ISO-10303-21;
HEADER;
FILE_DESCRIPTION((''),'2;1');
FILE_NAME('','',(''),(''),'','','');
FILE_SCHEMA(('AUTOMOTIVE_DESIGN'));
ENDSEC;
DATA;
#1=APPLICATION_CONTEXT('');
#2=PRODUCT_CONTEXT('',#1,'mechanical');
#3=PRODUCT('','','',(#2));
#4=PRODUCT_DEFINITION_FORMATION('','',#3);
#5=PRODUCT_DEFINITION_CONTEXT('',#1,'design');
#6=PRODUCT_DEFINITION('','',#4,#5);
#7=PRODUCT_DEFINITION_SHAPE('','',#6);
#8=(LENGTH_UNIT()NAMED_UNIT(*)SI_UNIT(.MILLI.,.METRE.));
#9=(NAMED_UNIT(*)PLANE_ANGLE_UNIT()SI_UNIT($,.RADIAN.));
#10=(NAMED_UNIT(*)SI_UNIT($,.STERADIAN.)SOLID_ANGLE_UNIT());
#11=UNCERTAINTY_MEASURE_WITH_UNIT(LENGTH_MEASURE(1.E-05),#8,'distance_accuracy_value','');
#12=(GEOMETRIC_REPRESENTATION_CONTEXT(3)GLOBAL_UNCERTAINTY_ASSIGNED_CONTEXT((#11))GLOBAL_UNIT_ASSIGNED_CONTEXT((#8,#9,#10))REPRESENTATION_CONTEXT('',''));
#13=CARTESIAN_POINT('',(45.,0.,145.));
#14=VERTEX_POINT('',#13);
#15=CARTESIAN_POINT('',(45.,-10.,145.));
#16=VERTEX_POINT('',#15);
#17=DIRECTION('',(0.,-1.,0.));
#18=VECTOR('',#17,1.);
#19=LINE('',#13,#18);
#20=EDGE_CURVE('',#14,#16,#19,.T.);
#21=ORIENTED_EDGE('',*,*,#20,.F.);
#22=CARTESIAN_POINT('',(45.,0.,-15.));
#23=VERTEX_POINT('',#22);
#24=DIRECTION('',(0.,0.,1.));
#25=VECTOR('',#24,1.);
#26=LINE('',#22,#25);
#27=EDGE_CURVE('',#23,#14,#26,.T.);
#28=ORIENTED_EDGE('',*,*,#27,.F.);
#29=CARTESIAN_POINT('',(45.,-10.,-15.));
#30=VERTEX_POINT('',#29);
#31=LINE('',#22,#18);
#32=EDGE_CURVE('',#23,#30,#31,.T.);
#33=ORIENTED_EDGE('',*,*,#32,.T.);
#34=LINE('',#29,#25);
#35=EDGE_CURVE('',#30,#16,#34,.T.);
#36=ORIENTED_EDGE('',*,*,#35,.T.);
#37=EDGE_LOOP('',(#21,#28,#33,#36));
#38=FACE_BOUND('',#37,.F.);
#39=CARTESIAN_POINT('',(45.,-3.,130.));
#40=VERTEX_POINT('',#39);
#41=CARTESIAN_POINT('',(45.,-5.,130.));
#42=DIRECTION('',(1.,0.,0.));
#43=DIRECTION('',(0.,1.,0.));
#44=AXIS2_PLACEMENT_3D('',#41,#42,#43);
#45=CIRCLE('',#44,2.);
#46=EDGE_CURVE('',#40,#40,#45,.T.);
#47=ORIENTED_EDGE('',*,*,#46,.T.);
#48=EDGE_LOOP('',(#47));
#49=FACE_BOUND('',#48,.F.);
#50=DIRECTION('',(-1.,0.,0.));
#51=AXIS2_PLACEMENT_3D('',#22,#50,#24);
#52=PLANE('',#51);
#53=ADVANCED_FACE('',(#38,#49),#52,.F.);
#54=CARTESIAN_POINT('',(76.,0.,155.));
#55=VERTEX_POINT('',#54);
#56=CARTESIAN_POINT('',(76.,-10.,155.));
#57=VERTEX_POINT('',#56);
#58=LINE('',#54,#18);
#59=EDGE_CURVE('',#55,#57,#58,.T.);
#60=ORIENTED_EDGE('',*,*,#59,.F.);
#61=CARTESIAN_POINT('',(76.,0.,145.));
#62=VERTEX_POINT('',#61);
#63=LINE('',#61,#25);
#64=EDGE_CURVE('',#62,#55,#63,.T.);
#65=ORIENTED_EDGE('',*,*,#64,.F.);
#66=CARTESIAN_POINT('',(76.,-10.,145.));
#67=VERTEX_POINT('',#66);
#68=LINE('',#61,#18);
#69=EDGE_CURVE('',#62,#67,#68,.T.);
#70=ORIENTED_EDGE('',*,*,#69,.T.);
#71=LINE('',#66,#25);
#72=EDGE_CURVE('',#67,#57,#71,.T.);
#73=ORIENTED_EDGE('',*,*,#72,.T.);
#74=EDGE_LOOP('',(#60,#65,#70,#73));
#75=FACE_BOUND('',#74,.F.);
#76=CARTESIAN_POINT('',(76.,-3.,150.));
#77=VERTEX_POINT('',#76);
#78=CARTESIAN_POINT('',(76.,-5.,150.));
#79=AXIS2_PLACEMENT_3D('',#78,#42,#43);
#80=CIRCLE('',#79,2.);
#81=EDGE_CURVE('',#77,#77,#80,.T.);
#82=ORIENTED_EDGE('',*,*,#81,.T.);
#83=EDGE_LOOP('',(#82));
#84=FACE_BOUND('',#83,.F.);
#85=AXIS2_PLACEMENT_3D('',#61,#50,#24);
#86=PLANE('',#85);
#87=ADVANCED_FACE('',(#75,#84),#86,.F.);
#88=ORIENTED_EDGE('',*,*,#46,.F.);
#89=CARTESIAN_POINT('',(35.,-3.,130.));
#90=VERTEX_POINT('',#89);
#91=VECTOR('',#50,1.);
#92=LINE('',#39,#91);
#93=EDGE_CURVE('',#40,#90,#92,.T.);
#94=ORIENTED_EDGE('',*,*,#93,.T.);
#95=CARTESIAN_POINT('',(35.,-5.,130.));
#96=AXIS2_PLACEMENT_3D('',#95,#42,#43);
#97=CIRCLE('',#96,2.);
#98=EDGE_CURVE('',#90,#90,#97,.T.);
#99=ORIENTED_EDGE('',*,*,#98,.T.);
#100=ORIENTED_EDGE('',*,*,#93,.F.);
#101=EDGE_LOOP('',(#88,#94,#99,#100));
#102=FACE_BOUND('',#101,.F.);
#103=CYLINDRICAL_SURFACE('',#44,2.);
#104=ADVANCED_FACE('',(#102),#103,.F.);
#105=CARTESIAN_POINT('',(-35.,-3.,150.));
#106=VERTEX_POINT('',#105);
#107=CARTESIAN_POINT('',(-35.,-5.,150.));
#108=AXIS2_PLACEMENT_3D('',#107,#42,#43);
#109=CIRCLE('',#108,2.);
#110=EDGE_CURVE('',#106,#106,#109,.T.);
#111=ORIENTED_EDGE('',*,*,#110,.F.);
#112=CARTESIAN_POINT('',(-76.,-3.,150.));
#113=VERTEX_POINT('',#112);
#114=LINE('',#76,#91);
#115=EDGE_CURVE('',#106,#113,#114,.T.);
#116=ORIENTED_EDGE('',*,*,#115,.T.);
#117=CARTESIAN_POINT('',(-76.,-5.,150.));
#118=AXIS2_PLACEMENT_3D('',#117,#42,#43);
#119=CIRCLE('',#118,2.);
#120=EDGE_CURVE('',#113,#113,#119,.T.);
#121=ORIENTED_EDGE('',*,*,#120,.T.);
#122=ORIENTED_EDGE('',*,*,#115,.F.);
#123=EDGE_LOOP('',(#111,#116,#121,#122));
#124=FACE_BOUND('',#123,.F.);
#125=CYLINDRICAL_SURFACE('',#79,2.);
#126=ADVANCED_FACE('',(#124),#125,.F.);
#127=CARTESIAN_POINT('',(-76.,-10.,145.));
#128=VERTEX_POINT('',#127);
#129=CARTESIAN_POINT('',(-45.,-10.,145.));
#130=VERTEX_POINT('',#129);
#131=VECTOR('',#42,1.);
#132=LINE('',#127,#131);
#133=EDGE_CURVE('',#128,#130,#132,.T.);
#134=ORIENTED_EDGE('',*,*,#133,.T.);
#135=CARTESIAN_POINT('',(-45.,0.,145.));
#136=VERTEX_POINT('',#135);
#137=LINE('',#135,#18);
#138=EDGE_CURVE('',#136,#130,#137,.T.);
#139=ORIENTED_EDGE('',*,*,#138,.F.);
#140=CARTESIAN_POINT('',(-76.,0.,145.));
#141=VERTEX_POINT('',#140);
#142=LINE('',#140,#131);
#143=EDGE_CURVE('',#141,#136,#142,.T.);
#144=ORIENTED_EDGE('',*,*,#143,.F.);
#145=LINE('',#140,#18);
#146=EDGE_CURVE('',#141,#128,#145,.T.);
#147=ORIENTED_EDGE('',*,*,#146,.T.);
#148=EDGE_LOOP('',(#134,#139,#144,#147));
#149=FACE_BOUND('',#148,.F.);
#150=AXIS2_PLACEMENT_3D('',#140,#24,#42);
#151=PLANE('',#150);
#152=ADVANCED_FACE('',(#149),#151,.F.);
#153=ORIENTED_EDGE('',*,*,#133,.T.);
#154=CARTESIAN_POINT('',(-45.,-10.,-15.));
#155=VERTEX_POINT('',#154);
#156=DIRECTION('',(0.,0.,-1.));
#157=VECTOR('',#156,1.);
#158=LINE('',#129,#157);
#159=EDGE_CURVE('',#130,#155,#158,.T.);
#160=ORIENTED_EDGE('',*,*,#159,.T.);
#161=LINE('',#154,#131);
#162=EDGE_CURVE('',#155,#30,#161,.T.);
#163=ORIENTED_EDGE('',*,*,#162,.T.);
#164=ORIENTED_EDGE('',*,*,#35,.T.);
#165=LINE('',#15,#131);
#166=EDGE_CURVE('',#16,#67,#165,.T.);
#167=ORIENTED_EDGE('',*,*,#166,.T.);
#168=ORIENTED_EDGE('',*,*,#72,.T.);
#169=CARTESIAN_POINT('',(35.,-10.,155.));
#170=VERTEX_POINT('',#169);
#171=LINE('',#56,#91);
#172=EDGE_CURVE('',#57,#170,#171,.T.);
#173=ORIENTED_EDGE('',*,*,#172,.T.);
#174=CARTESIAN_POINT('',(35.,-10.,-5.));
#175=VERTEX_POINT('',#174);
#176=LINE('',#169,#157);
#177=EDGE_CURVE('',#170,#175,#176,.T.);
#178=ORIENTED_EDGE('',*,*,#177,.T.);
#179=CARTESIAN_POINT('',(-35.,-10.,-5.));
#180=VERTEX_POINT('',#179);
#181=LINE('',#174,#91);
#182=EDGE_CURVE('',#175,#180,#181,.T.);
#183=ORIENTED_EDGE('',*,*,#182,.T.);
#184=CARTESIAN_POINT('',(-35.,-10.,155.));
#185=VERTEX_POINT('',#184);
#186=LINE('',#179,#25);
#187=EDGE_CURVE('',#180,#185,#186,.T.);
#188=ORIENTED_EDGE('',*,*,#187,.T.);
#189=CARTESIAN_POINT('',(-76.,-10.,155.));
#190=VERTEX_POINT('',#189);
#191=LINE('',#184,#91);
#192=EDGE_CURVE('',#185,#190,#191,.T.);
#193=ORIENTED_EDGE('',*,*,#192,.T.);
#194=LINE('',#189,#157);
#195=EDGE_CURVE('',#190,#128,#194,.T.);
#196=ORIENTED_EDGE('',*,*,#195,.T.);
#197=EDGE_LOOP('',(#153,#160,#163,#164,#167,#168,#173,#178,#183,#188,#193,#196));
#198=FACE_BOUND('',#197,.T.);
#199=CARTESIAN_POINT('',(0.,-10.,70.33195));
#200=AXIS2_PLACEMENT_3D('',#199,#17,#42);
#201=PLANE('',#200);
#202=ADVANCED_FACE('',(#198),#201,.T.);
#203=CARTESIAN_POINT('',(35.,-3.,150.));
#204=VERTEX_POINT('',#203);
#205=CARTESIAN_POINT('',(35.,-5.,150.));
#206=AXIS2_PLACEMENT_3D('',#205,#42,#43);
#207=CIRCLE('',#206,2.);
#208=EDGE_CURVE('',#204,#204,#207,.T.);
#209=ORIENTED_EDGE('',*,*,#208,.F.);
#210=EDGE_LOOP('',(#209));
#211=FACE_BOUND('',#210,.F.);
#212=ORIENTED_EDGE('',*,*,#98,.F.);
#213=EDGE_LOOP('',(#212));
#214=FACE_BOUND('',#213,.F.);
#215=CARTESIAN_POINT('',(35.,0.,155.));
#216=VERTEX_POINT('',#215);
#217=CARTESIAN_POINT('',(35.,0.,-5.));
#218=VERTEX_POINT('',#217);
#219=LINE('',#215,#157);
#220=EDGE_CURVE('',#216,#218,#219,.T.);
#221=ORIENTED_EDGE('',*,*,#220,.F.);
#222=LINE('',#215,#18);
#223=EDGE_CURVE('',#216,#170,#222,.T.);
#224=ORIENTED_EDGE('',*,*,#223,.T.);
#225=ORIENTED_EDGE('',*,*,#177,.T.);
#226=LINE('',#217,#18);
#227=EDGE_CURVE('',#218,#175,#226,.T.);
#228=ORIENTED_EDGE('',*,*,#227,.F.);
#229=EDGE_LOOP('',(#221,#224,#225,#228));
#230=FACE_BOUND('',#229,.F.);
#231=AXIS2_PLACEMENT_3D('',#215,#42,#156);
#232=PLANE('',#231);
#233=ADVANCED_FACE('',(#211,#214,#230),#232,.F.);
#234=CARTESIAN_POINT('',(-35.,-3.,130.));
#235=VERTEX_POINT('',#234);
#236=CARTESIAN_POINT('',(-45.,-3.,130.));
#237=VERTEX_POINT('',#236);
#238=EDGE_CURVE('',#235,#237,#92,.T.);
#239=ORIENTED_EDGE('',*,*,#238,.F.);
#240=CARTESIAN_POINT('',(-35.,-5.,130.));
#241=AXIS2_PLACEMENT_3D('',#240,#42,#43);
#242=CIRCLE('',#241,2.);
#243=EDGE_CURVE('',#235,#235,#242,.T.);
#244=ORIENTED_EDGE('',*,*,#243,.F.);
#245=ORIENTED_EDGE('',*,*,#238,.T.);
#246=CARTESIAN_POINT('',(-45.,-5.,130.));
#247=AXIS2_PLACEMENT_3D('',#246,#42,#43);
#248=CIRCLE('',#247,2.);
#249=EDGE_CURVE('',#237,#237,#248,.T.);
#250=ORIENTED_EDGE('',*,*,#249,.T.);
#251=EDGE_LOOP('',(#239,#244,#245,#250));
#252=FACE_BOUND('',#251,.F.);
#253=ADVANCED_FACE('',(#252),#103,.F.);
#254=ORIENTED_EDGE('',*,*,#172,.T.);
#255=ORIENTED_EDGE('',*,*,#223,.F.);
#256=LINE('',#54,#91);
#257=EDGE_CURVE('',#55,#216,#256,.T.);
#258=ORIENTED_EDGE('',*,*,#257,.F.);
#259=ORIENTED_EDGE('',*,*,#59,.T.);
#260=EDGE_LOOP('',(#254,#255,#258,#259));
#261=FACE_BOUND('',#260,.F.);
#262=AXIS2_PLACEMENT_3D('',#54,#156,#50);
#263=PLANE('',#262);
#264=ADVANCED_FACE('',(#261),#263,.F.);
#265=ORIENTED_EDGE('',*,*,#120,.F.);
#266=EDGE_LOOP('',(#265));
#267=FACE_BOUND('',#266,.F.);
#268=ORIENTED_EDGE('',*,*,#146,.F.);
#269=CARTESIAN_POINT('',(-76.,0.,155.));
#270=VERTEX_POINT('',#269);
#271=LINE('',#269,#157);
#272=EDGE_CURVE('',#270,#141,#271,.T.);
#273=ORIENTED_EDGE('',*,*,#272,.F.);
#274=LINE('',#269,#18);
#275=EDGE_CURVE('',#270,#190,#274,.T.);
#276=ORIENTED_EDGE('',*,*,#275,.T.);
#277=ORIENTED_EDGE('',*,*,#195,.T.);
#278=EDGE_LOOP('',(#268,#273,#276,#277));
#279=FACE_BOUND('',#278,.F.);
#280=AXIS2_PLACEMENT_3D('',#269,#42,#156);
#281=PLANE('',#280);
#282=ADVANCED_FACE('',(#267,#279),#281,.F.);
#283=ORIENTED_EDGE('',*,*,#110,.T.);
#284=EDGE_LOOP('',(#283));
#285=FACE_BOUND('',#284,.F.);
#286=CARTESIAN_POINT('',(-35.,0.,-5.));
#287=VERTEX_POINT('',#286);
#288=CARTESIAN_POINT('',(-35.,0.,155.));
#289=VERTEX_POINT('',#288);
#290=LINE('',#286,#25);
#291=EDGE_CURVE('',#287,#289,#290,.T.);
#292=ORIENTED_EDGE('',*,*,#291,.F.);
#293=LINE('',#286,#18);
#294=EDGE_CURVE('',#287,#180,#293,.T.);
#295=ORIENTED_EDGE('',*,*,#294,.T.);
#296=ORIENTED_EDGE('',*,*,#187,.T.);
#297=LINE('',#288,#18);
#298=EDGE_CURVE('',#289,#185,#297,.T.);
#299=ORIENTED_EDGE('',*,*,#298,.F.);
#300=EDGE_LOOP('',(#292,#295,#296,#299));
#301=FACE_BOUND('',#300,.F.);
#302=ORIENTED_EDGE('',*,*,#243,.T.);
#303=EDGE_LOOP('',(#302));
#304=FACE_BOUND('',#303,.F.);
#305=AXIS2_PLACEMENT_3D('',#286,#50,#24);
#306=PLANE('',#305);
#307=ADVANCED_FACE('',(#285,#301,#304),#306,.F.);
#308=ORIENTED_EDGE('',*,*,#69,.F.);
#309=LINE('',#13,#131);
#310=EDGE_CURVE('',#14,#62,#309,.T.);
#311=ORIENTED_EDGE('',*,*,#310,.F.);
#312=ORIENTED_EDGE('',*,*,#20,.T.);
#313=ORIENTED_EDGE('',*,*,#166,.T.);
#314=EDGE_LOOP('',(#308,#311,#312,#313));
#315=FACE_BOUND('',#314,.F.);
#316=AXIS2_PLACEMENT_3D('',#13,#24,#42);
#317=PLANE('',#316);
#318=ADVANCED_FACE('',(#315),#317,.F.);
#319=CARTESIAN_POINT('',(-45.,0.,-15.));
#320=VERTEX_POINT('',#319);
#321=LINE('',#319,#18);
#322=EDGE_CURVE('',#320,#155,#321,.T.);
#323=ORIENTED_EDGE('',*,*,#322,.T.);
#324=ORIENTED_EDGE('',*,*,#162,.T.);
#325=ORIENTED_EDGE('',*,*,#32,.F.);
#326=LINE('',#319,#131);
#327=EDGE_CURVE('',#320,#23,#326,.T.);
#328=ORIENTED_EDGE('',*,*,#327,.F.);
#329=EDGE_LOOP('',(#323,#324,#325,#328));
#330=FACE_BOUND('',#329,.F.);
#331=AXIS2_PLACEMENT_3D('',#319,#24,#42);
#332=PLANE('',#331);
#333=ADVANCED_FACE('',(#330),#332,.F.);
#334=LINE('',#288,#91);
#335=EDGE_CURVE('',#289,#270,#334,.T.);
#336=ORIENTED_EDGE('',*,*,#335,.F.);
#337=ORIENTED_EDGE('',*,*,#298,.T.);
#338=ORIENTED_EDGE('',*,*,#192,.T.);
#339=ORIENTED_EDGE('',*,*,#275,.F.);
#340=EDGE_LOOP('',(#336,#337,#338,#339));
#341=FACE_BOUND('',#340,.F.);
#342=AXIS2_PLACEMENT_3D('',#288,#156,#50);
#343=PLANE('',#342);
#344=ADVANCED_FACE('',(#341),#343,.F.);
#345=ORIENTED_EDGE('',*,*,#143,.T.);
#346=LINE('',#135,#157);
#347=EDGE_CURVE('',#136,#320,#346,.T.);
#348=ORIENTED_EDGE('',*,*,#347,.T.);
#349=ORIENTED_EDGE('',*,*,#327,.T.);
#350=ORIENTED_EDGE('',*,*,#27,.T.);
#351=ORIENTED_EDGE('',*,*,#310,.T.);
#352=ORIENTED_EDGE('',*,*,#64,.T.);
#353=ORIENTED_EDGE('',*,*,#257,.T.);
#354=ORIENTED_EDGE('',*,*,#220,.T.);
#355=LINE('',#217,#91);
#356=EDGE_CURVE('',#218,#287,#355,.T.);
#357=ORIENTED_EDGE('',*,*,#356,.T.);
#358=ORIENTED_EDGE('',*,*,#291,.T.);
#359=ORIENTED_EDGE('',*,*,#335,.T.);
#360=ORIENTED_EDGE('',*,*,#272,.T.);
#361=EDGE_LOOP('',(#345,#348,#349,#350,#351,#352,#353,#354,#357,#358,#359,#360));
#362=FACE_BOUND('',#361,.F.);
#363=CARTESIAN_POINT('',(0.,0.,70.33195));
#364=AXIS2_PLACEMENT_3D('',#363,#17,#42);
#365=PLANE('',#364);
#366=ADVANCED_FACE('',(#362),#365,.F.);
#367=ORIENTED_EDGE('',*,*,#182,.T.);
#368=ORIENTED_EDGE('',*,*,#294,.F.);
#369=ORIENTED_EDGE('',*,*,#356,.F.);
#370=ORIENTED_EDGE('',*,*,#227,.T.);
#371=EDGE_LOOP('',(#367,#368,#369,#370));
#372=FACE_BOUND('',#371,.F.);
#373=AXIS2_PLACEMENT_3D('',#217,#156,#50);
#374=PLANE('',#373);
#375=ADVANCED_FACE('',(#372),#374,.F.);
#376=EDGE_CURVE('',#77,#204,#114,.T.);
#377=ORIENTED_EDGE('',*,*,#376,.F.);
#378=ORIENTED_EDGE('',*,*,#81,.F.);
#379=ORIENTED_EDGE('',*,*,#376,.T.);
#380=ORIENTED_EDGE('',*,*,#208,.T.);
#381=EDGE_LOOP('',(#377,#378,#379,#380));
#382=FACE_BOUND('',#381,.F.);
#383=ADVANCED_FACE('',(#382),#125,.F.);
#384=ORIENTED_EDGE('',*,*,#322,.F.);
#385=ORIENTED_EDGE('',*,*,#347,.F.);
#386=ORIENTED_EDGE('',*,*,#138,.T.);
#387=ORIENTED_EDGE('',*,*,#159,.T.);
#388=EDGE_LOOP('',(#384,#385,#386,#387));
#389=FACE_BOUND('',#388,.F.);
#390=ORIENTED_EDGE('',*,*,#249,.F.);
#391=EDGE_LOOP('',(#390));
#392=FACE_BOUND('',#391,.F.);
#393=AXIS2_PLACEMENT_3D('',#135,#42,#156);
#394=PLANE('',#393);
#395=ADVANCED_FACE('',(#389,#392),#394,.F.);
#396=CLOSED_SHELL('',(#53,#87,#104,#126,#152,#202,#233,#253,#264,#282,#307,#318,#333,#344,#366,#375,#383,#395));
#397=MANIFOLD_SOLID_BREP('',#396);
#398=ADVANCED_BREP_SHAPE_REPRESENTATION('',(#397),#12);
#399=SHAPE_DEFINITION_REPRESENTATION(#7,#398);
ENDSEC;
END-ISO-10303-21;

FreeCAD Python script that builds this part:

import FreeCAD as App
import Part
import Sketcher
from FreeCAD import Vector

doc = App.newDocument("Part")
params = doc.addObject("Spreadsheet::Sheet", "Params")
for row, (alias, value) in enumerate([
    ("sketch1_width", "90 mm"),
    ("sketch1_width2", "31 mm"),
    ("sketch1_width3", "41 mm"),
    ("sketch1_height", "160 mm"),
    ("sketch1_height2", "10 mm"),
    ("pad1_length", "10 mm"),
    ("sketch2_diameter", "4 mm"),
    ("sketch3_diameter", "4 mm"),
], start=1):
    params.set(f"A{row}", alias)
    params.set(f"B{row}", "=" + value)
    params.setAlias(f"B{row}", alias)

body = doc.addObject("PartDesign::Body", "Body")

sketch1 = body.newObject("Sketcher::SketchObject", "Sketch")
sketch1.AttachmentSupport = (doc.getObject("XZ_Plane"), [""])
sketch1.MapMode = "FlatFace"
sketch1.addGeometry([
    Part.LineSegment(Vector(-45, 145, 0), Vector(-45, -15, 0)),
    Part.LineSegment(Vector(-45, -15, 0), Vector(45, -15, 0)),
    Part.LineSegment(Vector(45, -15, 0), Vector(45, 145, 0)),
    Part.LineSegment(Vector(45, 145, 0), Vector(76, 145, 0)),
    Part.LineSegment(Vector(76, 145, 0), Vector(76, 155, 0)),
    Part.LineSegment(Vector(76, 155, 0), Vector(35, 155, 0)),
    Part.LineSegment(Vector(35, 155, 0), Vector(35, -5, 0)),
    Part.LineSegment(Vector(35, -5, 0), Vector(-35, -5, 0)),
    Part.LineSegment(Vector(-35, -5, 0), Vector(-35, 155, 0)),
    Part.LineSegment(Vector(-35, 155, 0), Vector(-76, 155, 0)),
    Part.LineSegment(Vector(-76, 155, 0), Vector(-76, 145, 0)),
    Part.LineSegment(Vector(-76, 145, 0), Vector(-45, 145, 0)),
], False)
sketch1.addConstraint([
    Sketcher.Constraint("Coincident", 0, 2, 1, 1),
    Sketcher.Constraint("Coincident", 1, 2, 2, 1),
    Sketcher.Constraint("Coincident", 2, 2, 3, 1),
    Sketcher.Constraint("Coincident", 3, 2, 4, 1),
    Sketcher.Constraint("Coincident", 4, 2, 5, 1),
    Sketcher.Constraint("Coincident", 5, 2, 6, 1),
    Sketcher.Constraint("Coincident", 6, 2, 7, 1),
    Sketcher.Constraint("Coincident", 7, 2, 8, 1),
    Sketcher.Constraint("Coincident", 8, 2, 9, 1),
    Sketcher.Constraint("Coincident", 9, 2, 10, 1),
    Sketcher.Constraint("Coincident", 10, 2, 11, 1),
    Sketcher.Constraint("Coincident", 11, 2, 0, 1),
    Sketcher.Constraint("Vertical", 0),
    Sketcher.Constraint("Horizontal", 1),
    Sketcher.Constraint("Vertical", 2),
    Sketcher.Constraint("Horizontal", 3),
    Sketcher.Constraint("Vertical", 4),
    Sketcher.Constraint("Horizontal", 5),
    Sketcher.Constraint("Vertical", 6),
    Sketcher.Constraint("Horizontal", 7),
    Sketcher.Constraint("Vertical", 8),
    Sketcher.Constraint("Horizontal", 9),
    Sketcher.Constraint("Vertical", 10),
    Sketcher.Constraint("Horizontal", 11),
    Sketcher.Constraint("Symmetric", 5, 2, 8, 2, -2),
    Sketcher.Constraint("Symmetric", 3, 2, 10, 2, -2),
    Sketcher.Constraint("Equal", 3, 11),
    Sketcher.Constraint("Equal", 2, 6),
    Sketcher.Constraint("DistanceX", 1, 1, 1, 2, 90.0),
    Sketcher.Constraint("DistanceX", 3, 1, 3, 2, 31.0),
    Sketcher.Constraint("DistanceX", 5, 2, 5, 1, 41.0),
    Sketcher.Constraint("DistanceY", 0, 2, 0, 1, 160.0),
    Sketcher.Constraint("DistanceY", 4, 1, 4, 2, 10.0),
    Sketcher.Constraint("DistanceY", 0, 2, -1, 1, 15.0),
])
sketch1.setExpression("Constraints[28]", "Params.sketch1_width")
sketch1.setExpression("Constraints[29]", "Params.sketch1_width2")
sketch1.setExpression("Constraints[30]", "Params.sketch1_width3")
sketch1.setExpression("Constraints[31]", "Params.sketch1_height")
sketch1.setExpression("Constraints[32]", "Params.sketch1_height2")
pad1 = body.newObject("PartDesign::Pad", "Pad")
pad1.Profile = sketch1
pad1.setExpression("Length", "Params.pad1_length")

sketch2 = body.newObject("Sketcher::SketchObject", "Sketch001")
sketch2.AttachmentSupport = (doc.getObject("YZ_Plane"), [""])
sketch2.MapMode = "FlatFace"
sketch2.AttachmentOffset = App.Placement(Vector(0, 0, 76), App.Rotation())
sketch2.addGeometry(Part.Circle(Vector(-5, 150, 0), Vector(0, 0, 1), 2), False)
sketch2.addConstraint([
    Sketcher.Constraint("Diameter", 0, 4.0),
    Sketcher.Constraint("DistanceX", 0, 3, -1, 1, 5.0),
    Sketcher.Constraint("DistanceY", -1, 1, 0, 3, 150.0),
])
sketch2.setExpression("Constraints[0]", "Params.sketch2_diameter")
pocket1 = body.newObject("PartDesign::Pocket", "Pocket")
pocket1.Profile = sketch2
pocket1.Type = "ThroughAll"

sketch3 = body.newObject("Sketcher::SketchObject", "Sketch002")
sketch3.AttachmentSupport = (doc.getObject("YZ_Plane"), [""])
sketch3.MapMode = "FlatFace"
sketch3.AttachmentOffset = App.Placement(Vector(0, 0, 45), App.Rotation())
sketch3.addGeometry(Part.Circle(Vector(-5, 130, 0), Vector(0, 0, 1), 2), False)
sketch3.addConstraint([
    Sketcher.Constraint("Diameter", 0, 4.0),
    Sketcher.Constraint("DistanceX", 0, 3, -1, 1, 5.0),
    Sketcher.Constraint("DistanceY", -1, 1, 0, 3, 130.0),
])
sketch3.setExpression("Constraints[0]", "Params.sketch3_diameter")
pocket2 = body.newObject("PartDesign::Pocket", "Pocket001")
pocket2.Profile = sketch3
pocket2.Type = "ThroughAll"

doc.recompute()
